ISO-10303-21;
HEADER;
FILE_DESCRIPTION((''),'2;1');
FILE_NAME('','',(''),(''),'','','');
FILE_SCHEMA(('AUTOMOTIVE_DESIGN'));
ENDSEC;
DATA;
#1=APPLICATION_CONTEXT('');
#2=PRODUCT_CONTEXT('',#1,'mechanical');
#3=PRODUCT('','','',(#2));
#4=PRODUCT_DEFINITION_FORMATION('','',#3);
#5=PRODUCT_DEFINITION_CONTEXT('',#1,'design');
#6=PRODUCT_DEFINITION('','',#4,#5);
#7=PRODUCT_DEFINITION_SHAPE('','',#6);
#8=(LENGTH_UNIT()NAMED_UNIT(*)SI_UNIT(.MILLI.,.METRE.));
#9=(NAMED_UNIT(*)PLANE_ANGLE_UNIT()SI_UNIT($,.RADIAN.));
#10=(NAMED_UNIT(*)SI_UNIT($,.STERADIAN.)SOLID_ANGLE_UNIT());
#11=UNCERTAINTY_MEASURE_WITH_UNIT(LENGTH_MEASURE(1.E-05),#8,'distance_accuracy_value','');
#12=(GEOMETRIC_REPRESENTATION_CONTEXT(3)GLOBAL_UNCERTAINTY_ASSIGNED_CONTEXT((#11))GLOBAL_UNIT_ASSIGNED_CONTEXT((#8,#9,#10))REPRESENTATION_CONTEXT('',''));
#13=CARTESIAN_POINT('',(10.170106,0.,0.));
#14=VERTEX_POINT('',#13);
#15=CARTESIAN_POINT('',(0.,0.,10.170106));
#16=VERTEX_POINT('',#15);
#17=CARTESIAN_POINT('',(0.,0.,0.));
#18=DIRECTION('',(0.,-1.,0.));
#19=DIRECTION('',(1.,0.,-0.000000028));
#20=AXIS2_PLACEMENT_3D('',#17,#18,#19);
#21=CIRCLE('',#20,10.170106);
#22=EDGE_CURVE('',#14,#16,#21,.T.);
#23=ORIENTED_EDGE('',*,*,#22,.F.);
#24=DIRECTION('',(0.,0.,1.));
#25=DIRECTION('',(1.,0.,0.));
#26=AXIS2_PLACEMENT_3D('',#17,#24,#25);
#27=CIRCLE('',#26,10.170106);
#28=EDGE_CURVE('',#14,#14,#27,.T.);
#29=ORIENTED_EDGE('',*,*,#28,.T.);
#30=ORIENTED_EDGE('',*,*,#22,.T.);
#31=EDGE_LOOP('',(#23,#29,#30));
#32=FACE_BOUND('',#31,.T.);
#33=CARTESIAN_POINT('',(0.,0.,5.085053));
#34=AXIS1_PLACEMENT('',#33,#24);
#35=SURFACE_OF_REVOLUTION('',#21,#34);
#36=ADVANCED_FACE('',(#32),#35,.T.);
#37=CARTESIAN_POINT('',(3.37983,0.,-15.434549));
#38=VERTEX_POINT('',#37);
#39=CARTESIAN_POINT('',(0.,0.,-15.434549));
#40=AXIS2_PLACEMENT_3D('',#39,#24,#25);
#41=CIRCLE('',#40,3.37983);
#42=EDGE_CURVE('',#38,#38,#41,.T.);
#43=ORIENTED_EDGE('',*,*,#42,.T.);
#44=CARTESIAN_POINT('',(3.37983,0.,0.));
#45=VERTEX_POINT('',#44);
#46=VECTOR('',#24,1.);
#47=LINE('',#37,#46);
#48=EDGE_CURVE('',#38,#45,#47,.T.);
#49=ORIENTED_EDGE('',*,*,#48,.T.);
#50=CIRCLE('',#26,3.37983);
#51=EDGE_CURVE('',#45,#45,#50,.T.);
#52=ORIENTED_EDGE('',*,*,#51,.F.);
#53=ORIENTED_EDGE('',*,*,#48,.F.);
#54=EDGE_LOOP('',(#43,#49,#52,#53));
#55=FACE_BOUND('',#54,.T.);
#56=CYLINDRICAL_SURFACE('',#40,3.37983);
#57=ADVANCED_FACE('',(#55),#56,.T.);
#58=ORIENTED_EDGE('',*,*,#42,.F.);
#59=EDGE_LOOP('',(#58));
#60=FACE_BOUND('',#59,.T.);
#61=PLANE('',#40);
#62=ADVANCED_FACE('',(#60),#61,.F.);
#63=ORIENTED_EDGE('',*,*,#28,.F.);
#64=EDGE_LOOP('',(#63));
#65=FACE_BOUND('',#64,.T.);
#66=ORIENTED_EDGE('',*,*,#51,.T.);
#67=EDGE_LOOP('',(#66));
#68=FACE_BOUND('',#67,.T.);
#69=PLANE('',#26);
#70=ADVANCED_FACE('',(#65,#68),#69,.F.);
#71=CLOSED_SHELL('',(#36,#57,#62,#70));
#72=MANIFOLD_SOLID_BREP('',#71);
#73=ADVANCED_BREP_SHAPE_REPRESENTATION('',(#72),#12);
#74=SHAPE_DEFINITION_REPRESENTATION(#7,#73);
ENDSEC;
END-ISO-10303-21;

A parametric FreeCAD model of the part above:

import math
import FreeCAD as App
import Part
import Sketcher
from FreeCAD import Vector

doc = App.newDocument("Part")
body = doc.addObject("PartDesign::Body", "Body")

# Sketch on XZ plane
sketch1 = body.newObject("Sketcher::SketchObject", "Sketch")
sketch1.AttachmentSupport = (doc.getObject("XZ_Plane"), [""])
sketch1.MapMode = "FlatFace"
sketch1.addGeometry(Part.LineSegment(Vector(3.37983, 0, 0), Vector(10.170106, 0, 0)), False)
sketch1.addGeometry(Part.ArcOfCircle(Part.Circle(Vector(0, 0, 0), Vector(0, 0, 1), 10.170106), math.radians(-0.000002), math.radians(90.000002)), False)
sketch1.addGeometry(Part.LineSegment(Vector(0, 10.170106, 0), Vector(0, -15.434549, 0)), False)
sketch1.addGeometry(Part.LineSegment(Vector(0, -15.434549, 0), Vector(3.37983, -15.434549, 0)), False)
sketch1.addGeometry(Part.LineSegment(Vector(3.37983, -15.434549, 0), Vector(3.37983, 0, 0)), False)
sketch1.addConstraint(Sketcher.Constraint("Coincident", 0, 2, 1, 1))
sketch1.addConstraint(Sketcher.Constraint("Coincident", 1, 2, 2, 1))
sketch1.addConstraint(Sketcher.Constraint("Coincident", 2, 2, 3, 1))
sketch1.addConstraint(Sketcher.Constraint("Coincident", 3, 2, 4, 1))
sketch1.addConstraint(Sketcher.Constraint("Coincident", 4, 2, 0, 1))
sketch1.addConstraint(Sketcher.Constraint("Horizontal", 0))
sketch1.addConstraint(Sketcher.Constraint("Vertical", 2))
sketch1.addConstraint(Sketcher.Constraint("Horizontal", 3))
sketch1.addConstraint(Sketcher.Constraint("Vertical", 4))
sketch1.addConstraint(Sketcher.Constraint("Coincident", 1, 3, -1, 1))
sketch1.addConstraint(Sketcher.Constraint("PointOnObject", 0, 2, -1))
sketch1.addConstraint(Sketcher.Constraint("PointOnObject", 1, 2, -2))
sketch1.addConstraint(Sketcher.Constraint("Radius", 1, 10.170106))
sketch1.addConstraint(Sketcher.Constraint("DistanceX", 3, 1, 3, 2, 3.37983))
sketch1.addConstraint(Sketcher.Constraint("DistanceY", 4, 1, 4, 2, 15.434549))
revolution = body.newObject("PartDesign::Revolution", "Revolution")
revolution.Profile = sketch1
revolution.ReferenceAxis = (sketch1, ["V_Axis"])
revolution.Angle = 360

doc.recompute()
